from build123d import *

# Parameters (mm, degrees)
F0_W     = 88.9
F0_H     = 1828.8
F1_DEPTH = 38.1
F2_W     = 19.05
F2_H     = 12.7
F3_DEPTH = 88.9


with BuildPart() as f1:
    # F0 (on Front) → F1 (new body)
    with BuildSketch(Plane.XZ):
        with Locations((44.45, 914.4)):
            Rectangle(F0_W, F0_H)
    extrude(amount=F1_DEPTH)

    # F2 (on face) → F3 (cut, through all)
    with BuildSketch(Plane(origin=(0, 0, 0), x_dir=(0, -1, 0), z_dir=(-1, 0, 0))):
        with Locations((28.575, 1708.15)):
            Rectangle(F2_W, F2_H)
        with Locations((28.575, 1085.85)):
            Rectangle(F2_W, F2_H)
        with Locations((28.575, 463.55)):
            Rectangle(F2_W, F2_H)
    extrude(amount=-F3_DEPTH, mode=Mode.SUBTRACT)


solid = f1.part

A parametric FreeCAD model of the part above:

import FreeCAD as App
import Part
import Sketcher

V = App.Vector
Q = App.Units.Quantity

doc = App.newDocument("Part")
body = doc.addObject("PartDesign::Body", "Body")

sketch1 = doc.addObject("Sketcher::SketchObject", "Sketch")
body.addObject(sketch1)
sketch1.AttachmentSupport = (doc.XZ_Plane, [""])
sketch1.MapMode = "FlatFace"
sketch1.addGeometry(Part.LineSegment(V(0, 1829, 0), V(0, 0, 0)), False)
sketch1.addGeometry(Part.LineSegment(V(0, 0, 0), V(89, 0, 0)), False)
sketch1.addGeometry(Part.LineSegment(V(89, 0, 0), V(89, 1829, 0)), False)
sketch1.addGeometry(Part.LineSegment(V(89, 1829, 0), V(0, 1829, 0)), False)
sketch1.addConstraint(Sketcher.Constraint("Coincident", 0, 2, 1, 1))
sketch1.addConstraint(Sketcher.Constraint("Coincident", 1, 2, 2, 1))
sketch1.addConstraint(Sketcher.Constraint("Coincident", 2, 2, 3, 1))
sketch1.addConstraint(Sketcher.Constraint("Coincident", 3, 2, 0, 1))
sketch1.addConstraint(Sketcher.Constraint("Vertical", 0))
sketch1.addConstraint(Sketcher.Constraint("Horizontal", 1))
sketch1.addConstraint(Sketcher.Constraint("Vertical", 2))
sketch1.addConstraint(Sketcher.Constraint("Horizontal", 3))
sketch1.addConstraint(Sketcher.Constraint("Coincident", 0, 2, -1, 1))
sketch1.addConstraint(Sketcher.Constraint("DistanceY", 0, 2, 0, 1, Q("72 in")))
sketch1.addConstraint(Sketcher.Constraint("DistanceX", 1, 1, 1, 2, Q("3.5 in")))
pad1 = doc.addObject("PartDesign::Pad", "Pad")
body.addObject(pad1)
pad1.Profile = sketch1
pad1.Length = Q("1.5 in")

sketch2 = doc.addObject("Sketcher::SketchObject", "Sketch001")
body.addObject(sketch2)
sketch2.AttachmentSupport = (doc.YZ_Plane, [""])
sketch2.MapMode = "FlatFace"
sketch2.addGeometry(Part.LineSegment(V(-19, 1714, 0), V(-19, 1702, 0)), False)
sketch2.addGeometry(Part.LineSegment(V(-19, 1702, 0), V(-38, 1702, 0)), False)
sketch2.addGeometry(Part.LineSegment(V(-38, 1702, 0), V(-38, 1714, 0)), False)
sketch2.addGeometry(Part.LineSegment(V(-38, 1714, 0), V(-19, 1714, 0)), False)
sketch2.addGeometry(Part.LineSegment(V(-19, 1092, 0), V(-19, 1080, 0)), False)
sketch2.addGeometry(Part.LineSegment(V(-19, 1080, 0), V(-38, 1080, 0)), False)
sketch2.addGeometry(Part.LineSegment(V(-38, 1080, 0), V(-38, 1092, 0)), False)
sketch2.addGeometry(Part.LineSegment(V(-38, 1092, 0), V(-19, 1092, 0)), False)
sketch2.addGeometry(Part.LineSegment(V(-19, 470, 0), V(-19, 457, 0)), False)
sketch2.addGeometry(Part.LineSegment(V(-19, 457, 0), V(-38, 457, 0)), False)
sketch2.addGeometry(Part.LineSegment(V(-38, 457, 0), V(-38, 470, 0)), False)
sketch2.addGeometry(Part.LineSegment(V(-38, 470, 0), V(-19, 470, 0)), False)
sketch2.addConstraint(Sketcher.Constraint("Coincident", 0, 2, 1, 1))
sketch2.addConstraint(Sketcher.Constraint("Coincident", 1, 2, 2, 1))
sketch2.addConstraint(Sketcher.Constraint("Coincident", 2, 2, 3, 1))
sketch2.addConstraint(Sketcher.Constraint("Coincident", 3, 2, 0, 1))
sketch2.addConstraint(Sketcher.Constraint("Coincident", 4, 2, 5, 1))
sketch2.addConstraint(Sketcher.Constraint("Coincident", 5, 2, 6, 1))
sketch2.addConstraint(Sketcher.Constraint("Coincident", 6, 2, 7, 1))
sketch2.addConstraint(Sketcher.Constraint("Coincident", 7, 2, 4, 1))
sketch2.addConstraint(Sketcher.Constraint("Coincident", 8, 2, 9, 1))
sketch2.addConstraint(Sketcher.Constraint("Coincident", 9, 2, 10, 1))
sketch2.addConstraint(Sketcher.Constraint("Coincident", 10, 2, 11, 1))
sketch2.addConstraint(Sketcher.Constraint("Coincident", 11, 2, 8, 1))
sketch2.addConstraint(Sketcher.Constraint("Vertical", 0))
sketch2.addConstraint(Sketcher.Constraint("Horizontal", 1))
sketch2.addConstraint(Sketcher.Constraint("Vertical", 2))
sketch2.addConstraint(Sketcher.Constraint("Horizontal", 3))
sketch2.addConstraint(Sketcher.Constraint("Vertical", 4))
sketch2.addConstraint(Sketcher.Constraint("Horizontal", 5))
sketch2.addConstraint(Sketcher.Constraint("Vertical", 6))
sketch2.addConstraint(Sketcher.Constraint("Horizontal", 7))
sketch2.addConstraint(Sketcher.Constraint("Vertical", 8))
sketch2.addConstraint(Sketcher.Constraint("Horizontal", 9))
sketch2.addConstraint(Sketcher.Constraint("Vertical", 10))
sketch2.addConstraint(Sketcher.Constraint("Horizontal", 11))
sketch2.addConstraint(Sketcher.Constraint("Vertical", 3, 2, 4, 2))
sketch2.addConstraint(Sketcher.Constraint("Vertical", 2, 2, 5, 2))
sketch2.addConstraint(Sketcher.Constraint("Vertical", 7, 2, 8, 2))
sketch2.addConstraint(Sketcher.Constraint("Vertical", 6, 2, 9, 2))
sketch2.addConstraint(Sketcher.Constraint("Equal", 2, 4))
sketch2.addConstraint(Sketcher.Constraint("Equal", 6, 8))
sketch2.addConstraint(Sketcher.Constraint("DistanceY", 0, 2, 0, 1, Q("0.5 in")))
sketch2.addConstraint(Sketcher.Constraint("DistanceY", -1, 1, 0, 2, Q("67 in")))
sketch2.addConstraint(Sketcher.Constraint("DistanceY", -1, 1, 6, 2, Q("43 in")))
sketch2.addConstraint(Sketcher.Constraint("DistanceY", -1, 1, 8, 2, Q("18 in")))
sketch2.addConstraint(Sketcher.Constraint("DistanceX", 1, 2, 1, 1, Q("0.75 in")))
sketch2.addConstraint(Sketcher.Constraint("DistanceX", 1, 2, -1, 1, Q("1.5 in")))
pocket1 = doc.addObject("PartDesign::Pocket", "Pocket")
body.addObject(pocket1)
pocket1.Profile = sketch2
pocket1.Type = "ThroughAll"
pocket1.Reversed = True

doc.recompute()
